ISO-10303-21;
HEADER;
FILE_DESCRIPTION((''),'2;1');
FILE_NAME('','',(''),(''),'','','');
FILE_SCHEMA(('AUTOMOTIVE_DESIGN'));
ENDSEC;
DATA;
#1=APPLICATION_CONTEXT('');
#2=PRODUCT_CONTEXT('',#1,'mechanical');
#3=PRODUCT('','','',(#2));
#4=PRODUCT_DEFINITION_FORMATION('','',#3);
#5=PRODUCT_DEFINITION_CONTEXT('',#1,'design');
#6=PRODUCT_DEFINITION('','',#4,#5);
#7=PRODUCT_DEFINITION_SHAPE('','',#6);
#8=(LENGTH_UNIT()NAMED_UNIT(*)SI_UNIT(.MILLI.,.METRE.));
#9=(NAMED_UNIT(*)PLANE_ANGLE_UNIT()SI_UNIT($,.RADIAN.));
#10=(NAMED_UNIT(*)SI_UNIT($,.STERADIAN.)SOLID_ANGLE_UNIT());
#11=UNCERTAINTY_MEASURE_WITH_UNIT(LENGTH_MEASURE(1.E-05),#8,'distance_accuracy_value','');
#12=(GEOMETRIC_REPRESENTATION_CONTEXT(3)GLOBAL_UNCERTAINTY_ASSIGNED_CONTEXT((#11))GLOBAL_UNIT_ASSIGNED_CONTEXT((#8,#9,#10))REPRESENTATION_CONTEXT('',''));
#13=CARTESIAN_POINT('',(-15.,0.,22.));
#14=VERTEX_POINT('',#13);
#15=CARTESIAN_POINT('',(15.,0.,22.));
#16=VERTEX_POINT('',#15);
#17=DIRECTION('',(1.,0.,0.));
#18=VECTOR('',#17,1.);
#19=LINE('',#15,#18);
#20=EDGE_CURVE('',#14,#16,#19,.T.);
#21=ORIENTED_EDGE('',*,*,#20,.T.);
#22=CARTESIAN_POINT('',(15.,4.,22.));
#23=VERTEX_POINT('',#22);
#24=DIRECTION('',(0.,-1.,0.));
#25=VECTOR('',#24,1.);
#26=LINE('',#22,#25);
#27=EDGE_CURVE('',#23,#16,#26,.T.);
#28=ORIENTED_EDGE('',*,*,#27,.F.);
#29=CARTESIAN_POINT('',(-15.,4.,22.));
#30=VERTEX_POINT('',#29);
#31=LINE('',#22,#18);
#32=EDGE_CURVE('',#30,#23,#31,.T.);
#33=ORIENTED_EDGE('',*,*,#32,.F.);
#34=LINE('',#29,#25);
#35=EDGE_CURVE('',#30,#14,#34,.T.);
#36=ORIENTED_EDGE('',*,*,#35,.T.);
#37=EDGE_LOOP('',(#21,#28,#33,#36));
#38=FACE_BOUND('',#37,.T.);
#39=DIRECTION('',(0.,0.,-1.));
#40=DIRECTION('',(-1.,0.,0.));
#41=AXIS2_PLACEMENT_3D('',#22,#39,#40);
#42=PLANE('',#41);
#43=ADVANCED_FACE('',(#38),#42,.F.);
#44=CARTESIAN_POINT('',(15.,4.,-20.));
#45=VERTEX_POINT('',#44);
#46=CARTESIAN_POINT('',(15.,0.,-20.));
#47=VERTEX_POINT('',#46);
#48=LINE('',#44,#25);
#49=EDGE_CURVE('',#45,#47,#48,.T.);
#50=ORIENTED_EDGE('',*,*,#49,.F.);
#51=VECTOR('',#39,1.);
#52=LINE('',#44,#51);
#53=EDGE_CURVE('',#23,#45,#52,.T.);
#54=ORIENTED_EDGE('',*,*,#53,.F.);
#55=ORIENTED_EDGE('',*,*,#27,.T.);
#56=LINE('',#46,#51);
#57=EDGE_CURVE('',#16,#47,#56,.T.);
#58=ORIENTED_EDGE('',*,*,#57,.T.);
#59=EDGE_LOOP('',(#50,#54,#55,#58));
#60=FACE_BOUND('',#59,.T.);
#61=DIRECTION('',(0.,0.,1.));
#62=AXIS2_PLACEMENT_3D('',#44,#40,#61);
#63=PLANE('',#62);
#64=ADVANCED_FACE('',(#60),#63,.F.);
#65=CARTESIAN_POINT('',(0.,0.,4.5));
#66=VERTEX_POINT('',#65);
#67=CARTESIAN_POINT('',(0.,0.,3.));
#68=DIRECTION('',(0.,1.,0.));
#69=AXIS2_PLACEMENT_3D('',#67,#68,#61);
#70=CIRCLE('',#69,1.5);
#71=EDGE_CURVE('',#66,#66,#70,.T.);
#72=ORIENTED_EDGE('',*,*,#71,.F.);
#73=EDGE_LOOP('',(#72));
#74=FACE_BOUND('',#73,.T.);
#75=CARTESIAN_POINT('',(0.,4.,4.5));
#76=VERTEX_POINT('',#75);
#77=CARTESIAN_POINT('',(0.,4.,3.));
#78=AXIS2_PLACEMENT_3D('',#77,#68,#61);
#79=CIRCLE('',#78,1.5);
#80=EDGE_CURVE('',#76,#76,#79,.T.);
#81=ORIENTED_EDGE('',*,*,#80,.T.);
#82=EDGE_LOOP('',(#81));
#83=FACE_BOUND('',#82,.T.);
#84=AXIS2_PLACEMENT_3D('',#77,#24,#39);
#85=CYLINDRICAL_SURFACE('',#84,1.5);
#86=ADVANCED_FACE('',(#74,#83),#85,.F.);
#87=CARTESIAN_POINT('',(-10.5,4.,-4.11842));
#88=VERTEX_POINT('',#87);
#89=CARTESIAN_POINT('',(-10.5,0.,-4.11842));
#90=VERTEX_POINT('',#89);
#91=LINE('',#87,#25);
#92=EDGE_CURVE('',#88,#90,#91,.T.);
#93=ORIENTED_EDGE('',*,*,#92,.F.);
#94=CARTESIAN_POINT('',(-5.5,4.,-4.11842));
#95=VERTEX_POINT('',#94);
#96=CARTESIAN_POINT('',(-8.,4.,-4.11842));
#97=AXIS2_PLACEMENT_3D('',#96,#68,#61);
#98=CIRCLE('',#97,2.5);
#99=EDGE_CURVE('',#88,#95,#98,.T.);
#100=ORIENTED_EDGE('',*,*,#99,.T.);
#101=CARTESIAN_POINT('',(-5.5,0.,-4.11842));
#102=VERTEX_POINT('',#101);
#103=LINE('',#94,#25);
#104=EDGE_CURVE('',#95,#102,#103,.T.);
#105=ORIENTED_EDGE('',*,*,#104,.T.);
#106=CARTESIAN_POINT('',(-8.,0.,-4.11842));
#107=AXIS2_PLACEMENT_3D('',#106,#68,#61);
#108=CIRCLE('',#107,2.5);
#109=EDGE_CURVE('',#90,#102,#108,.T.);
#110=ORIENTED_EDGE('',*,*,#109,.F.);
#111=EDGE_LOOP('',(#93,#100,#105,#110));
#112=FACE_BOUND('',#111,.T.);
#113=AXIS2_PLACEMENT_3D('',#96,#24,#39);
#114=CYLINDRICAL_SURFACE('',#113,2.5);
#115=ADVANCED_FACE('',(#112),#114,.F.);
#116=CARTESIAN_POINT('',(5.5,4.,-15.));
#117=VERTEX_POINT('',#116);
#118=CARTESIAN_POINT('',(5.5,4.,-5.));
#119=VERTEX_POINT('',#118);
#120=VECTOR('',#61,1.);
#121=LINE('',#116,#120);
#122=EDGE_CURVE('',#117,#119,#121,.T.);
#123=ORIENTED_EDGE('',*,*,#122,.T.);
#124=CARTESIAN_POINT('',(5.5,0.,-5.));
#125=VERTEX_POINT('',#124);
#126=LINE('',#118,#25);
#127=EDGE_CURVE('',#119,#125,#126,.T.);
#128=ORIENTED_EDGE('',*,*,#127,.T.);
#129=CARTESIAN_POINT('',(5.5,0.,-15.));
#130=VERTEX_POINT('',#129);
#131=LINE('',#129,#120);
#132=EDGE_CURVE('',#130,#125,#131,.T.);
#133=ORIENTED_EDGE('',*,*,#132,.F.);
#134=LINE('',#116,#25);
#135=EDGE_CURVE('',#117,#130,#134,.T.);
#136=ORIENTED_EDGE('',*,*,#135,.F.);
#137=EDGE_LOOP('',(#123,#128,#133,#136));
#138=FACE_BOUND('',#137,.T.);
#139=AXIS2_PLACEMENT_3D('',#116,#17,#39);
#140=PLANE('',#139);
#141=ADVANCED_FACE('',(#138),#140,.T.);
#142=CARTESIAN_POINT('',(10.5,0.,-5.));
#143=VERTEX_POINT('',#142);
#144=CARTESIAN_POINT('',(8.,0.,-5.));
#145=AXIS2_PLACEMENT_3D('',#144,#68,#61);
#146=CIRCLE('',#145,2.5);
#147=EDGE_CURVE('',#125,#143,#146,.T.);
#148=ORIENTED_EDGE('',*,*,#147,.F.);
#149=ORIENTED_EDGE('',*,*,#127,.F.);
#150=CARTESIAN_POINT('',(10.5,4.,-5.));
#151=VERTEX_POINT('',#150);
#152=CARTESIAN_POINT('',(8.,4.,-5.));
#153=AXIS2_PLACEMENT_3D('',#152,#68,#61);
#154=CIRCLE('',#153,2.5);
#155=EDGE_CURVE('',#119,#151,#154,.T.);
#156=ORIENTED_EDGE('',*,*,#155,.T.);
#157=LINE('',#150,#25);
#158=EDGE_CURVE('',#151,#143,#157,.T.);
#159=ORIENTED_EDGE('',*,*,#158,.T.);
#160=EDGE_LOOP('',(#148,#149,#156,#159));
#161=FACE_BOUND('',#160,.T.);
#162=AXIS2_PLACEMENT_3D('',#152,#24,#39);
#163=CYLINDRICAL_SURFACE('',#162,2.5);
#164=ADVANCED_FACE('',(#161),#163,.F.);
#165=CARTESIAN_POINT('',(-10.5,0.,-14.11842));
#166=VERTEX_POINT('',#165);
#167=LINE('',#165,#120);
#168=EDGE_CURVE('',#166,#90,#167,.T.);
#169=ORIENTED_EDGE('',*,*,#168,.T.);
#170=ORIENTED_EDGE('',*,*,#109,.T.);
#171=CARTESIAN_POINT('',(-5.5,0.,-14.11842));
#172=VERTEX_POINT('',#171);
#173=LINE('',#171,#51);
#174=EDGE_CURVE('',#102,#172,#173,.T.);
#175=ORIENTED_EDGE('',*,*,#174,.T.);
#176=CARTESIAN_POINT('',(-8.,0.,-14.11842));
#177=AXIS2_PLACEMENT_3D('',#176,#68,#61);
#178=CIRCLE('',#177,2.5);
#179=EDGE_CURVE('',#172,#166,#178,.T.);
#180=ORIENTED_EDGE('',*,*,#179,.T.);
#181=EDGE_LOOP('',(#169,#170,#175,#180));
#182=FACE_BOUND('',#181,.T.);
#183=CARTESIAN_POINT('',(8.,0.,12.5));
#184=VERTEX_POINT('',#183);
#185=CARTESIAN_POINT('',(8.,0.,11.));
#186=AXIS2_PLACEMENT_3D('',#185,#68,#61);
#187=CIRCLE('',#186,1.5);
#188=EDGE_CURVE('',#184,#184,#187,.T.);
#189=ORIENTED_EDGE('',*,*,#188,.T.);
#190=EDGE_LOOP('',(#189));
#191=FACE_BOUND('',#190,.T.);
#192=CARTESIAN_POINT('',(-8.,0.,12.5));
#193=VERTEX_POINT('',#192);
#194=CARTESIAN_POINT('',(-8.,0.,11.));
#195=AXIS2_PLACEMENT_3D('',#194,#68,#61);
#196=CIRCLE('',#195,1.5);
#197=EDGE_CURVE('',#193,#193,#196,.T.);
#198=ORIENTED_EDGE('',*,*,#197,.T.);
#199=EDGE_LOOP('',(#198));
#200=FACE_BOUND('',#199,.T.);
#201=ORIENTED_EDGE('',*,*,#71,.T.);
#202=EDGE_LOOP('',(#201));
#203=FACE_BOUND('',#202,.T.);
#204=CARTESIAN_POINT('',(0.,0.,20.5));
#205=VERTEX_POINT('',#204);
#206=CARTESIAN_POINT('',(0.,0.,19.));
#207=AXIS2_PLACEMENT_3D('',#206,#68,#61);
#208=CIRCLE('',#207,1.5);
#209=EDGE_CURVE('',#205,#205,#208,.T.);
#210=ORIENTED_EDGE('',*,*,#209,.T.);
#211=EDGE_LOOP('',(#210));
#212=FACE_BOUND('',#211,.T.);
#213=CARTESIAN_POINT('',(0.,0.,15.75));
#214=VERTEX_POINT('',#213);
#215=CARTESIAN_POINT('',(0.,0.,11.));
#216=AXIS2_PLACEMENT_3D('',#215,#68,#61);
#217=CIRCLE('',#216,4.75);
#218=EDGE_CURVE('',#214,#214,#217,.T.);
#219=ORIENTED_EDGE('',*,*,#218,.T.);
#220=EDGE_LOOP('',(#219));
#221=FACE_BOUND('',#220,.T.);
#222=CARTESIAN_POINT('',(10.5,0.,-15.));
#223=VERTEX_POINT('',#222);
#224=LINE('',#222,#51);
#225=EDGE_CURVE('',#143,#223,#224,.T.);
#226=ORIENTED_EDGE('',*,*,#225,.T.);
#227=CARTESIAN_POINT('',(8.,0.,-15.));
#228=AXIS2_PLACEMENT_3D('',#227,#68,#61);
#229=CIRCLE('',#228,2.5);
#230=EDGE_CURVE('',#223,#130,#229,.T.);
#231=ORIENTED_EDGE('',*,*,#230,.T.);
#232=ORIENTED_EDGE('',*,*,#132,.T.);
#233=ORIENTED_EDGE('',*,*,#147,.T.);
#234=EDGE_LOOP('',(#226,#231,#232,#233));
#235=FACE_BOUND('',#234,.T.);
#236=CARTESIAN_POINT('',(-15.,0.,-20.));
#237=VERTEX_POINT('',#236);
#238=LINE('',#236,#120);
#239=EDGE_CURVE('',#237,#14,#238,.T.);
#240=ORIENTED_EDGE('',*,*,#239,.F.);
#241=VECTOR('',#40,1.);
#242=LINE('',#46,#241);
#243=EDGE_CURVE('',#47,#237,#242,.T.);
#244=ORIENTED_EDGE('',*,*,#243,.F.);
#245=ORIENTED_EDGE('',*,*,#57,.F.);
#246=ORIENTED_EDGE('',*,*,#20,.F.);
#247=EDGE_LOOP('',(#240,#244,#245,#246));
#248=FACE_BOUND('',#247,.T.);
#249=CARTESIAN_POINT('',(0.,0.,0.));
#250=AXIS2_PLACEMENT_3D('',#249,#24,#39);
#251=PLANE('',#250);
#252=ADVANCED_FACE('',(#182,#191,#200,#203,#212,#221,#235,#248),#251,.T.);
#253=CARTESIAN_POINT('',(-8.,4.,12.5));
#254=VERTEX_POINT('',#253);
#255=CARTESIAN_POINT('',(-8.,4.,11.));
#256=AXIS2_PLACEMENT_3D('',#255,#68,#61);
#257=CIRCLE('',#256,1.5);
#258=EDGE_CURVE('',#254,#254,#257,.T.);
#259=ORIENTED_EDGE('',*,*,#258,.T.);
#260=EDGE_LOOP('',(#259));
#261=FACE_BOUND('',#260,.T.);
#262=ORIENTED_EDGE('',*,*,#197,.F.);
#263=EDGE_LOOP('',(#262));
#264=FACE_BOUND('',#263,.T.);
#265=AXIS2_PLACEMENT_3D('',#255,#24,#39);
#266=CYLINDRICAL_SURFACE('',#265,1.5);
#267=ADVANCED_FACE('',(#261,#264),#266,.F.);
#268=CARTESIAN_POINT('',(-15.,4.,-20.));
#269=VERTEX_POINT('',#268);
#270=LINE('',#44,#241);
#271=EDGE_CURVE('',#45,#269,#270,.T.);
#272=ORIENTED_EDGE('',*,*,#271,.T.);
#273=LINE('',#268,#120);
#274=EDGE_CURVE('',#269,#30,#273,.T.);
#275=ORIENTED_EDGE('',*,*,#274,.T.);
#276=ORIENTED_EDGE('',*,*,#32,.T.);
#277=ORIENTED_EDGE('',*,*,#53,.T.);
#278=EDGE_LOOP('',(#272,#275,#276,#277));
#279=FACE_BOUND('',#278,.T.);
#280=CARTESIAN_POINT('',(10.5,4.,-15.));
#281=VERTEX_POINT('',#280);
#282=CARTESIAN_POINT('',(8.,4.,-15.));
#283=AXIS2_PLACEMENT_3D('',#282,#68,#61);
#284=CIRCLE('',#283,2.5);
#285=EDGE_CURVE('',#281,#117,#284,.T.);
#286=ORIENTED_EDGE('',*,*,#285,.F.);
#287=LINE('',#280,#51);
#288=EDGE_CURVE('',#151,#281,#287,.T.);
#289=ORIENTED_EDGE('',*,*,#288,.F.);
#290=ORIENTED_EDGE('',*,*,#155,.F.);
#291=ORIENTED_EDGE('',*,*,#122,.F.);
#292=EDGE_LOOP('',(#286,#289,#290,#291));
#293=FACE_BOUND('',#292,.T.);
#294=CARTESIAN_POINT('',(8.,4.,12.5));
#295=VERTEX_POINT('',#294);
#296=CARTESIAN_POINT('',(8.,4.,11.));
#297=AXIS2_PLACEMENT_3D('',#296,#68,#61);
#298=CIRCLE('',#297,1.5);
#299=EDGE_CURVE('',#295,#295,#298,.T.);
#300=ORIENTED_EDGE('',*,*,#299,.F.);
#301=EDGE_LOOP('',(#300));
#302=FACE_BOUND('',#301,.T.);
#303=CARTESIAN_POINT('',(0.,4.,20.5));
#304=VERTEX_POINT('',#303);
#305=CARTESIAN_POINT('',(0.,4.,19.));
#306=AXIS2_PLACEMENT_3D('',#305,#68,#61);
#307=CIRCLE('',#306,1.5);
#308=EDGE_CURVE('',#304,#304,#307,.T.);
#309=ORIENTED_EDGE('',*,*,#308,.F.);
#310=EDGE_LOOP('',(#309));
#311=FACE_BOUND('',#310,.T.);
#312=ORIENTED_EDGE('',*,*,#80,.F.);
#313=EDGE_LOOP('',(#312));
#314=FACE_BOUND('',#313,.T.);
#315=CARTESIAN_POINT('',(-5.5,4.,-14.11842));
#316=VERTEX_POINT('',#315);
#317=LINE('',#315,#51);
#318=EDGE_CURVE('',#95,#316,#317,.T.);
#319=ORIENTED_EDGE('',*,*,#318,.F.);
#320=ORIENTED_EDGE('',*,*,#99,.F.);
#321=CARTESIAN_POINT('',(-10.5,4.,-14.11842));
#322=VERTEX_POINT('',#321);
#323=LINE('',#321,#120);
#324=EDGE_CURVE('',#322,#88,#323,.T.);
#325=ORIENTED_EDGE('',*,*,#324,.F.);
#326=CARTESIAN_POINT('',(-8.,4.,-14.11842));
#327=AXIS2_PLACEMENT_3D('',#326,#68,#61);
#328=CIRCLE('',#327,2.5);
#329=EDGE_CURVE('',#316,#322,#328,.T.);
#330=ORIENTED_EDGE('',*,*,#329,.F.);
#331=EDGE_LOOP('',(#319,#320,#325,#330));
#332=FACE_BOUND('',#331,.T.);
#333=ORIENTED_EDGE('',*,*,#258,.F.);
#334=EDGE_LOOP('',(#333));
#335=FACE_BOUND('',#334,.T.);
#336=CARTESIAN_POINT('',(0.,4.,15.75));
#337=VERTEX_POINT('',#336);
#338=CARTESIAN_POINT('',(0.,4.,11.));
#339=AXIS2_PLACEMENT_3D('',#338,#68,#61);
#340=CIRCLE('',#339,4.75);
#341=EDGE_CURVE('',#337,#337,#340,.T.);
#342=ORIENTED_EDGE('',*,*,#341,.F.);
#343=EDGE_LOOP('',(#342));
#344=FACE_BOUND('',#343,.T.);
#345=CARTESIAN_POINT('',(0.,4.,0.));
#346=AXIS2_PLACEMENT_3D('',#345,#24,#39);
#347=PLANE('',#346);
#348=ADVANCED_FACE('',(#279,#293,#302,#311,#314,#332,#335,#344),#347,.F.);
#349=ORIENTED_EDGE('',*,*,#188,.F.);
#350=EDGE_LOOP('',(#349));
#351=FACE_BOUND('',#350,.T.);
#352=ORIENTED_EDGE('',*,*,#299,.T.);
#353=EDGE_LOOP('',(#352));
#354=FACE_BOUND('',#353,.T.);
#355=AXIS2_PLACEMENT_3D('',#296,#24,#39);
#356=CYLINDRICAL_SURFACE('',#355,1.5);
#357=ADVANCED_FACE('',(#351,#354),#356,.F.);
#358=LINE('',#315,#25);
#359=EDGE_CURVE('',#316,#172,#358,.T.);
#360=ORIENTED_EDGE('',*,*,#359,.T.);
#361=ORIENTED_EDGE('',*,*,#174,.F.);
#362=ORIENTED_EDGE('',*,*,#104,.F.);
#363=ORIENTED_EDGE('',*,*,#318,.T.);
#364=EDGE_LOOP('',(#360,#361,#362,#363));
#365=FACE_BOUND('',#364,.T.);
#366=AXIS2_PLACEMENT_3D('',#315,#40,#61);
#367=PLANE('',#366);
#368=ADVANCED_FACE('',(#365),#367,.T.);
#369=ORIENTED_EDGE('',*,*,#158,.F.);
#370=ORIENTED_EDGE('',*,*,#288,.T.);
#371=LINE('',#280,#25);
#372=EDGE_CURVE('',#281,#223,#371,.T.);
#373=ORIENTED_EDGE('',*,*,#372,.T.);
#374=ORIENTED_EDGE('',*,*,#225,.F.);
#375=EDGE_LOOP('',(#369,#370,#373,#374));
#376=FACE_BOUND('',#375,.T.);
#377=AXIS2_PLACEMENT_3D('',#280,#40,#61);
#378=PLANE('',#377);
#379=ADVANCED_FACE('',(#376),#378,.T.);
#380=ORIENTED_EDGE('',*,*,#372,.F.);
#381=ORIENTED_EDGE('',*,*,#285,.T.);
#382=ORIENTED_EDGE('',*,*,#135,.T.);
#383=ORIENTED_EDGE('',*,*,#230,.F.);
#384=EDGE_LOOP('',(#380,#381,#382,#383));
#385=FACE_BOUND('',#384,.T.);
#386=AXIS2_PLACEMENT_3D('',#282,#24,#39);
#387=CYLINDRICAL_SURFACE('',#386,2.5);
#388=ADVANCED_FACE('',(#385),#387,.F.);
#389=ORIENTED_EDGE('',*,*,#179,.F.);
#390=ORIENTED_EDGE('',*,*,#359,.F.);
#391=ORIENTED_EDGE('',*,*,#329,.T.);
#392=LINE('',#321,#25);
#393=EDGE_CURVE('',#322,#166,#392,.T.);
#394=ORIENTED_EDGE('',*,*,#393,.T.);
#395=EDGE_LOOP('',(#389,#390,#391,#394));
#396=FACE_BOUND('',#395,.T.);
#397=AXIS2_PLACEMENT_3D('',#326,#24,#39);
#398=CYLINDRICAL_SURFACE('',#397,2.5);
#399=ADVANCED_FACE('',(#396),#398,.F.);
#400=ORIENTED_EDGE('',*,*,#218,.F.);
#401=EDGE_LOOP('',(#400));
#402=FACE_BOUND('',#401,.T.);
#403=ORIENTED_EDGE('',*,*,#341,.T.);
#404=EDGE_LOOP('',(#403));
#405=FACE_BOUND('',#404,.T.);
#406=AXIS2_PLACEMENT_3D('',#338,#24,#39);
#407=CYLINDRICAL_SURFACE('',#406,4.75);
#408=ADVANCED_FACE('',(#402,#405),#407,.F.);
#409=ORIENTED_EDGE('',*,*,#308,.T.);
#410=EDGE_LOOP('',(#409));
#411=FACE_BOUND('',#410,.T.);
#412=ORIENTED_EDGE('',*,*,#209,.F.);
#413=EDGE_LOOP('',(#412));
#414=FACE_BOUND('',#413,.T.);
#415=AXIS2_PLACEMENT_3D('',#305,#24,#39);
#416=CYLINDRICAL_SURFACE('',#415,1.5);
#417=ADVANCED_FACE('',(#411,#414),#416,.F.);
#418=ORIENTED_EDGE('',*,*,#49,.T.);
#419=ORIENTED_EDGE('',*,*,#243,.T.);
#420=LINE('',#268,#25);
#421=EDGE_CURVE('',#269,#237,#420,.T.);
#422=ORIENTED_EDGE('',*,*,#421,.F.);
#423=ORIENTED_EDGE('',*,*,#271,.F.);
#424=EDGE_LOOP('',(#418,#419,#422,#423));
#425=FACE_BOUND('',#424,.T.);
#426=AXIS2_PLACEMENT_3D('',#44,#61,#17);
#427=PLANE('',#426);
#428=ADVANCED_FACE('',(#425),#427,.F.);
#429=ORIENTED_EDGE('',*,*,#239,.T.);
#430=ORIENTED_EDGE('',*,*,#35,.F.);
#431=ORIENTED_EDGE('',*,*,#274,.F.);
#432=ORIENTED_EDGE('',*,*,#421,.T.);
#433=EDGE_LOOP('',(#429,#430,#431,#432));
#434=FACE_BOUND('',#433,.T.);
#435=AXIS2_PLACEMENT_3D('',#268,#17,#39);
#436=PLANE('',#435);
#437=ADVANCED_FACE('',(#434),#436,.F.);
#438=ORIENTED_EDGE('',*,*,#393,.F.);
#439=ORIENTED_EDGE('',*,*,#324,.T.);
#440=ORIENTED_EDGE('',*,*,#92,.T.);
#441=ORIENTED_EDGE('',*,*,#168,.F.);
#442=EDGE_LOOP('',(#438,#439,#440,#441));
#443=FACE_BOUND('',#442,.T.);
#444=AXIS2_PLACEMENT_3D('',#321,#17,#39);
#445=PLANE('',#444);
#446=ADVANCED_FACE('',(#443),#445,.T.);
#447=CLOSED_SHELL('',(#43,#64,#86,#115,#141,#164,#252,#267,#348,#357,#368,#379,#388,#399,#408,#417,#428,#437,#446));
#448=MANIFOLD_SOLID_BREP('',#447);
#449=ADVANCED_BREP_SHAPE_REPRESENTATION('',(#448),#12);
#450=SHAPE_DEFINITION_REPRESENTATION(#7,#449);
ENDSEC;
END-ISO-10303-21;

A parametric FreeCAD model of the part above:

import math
import FreeCAD as App
import Part
import Sketcher


def add_polygon(sketch, points):
    """Adds a closed chain of lines whose ends are joined by coincident constraints."""
    first, n = sketch.GeometryCount, len(points)
    for a, b in zip(points, points[1:] + points[:1]):
        sketch.addGeometry(Part.LineSegment(App.Vector(*a, 0), App.Vector(*b, 0)), False)
    for i in range(n):
        sketch.addConstraint(Sketcher.Constraint("Coincident", first + i, 2, first + (i + 1) % n, 1))

doc = App.newDocument("Part")
body = doc.addObject("PartDesign::Body", "Body")

sketch1 = body.newObject("Sketcher::SketchObject", "Sketch")
sketch1.AttachmentSupport = (doc.getObject("XZ_Plane"), [""])
sketch1.MapMode = "FlatFace"
add_polygon(sketch1, [(-15, -20), (-15, 22), (15, 22), (15, -20)])
sketch1.addGeometry(Part.Circle(App.Vector(-8, 11, 0), App.Vector(0, 0, 1), 1.5), False)
sketch1.addGeometry(Part.Circle(App.Vector(0, 19, 0), App.Vector(0, 0, 1), 1.5), False)
sketch1.addGeometry(Part.Circle(App.Vector(0, 11, 0), App.Vector(0, 0, 1), 4.8), False)
sketch1.addGeometry(Part.Circle(App.Vector(0, 3, 0), App.Vector(0, 0, 1), 1.5), False)
sketch1.addGeometry(Part.Circle(App.Vector(8, 11, 0), App.Vector(0, 0, 1), 1.5), False)
sketch1.addGeometry(Part.LineSegment(App.Vector(-10.5, -4.1, 0), App.Vector(-10.5, -14.1, 0)), False)
sketch1.addGeometry(Part.ArcOfCircle(Part.Circle(App.Vector(-8, -14.1, 0), App.Vector(0, 0, 1), 2.5), math.radians(180), math.radians(360)), False)
sketch1.addGeometry(Part.LineSegment(App.Vector(-5.5, -14.1, 0), App.Vector(-5.5, -4.1, 0)), False)
sketch1.addGeometry(Part.ArcOfCircle(Part.Circle(App.Vector(-8, -4.1, 0), App.Vector(0, 0, 1), 2.5), math.radians(0), math.radians(180)), False)
sketch1.addGeometry(Part.LineSegment(App.Vector(5.5, -5, 0), App.Vector(5.5, -15, 0)), False)
sketch1.addGeometry(Part.ArcOfCircle(Part.Circle(App.Vector(8, -15, 0), App.Vector(0, 0, 1), 2.5), math.radians(180), math.radians(360)), False)
sketch1.addGeometry(Part.LineSegment(App.Vector(10.5, -15, 0), App.Vector(10.5, -5, 0)), False)
sketch1.addGeometry(Part.ArcOfCircle(Part.Circle(App.Vector(8, -5, 0), App.Vector(0, 0, 1), 2.5), math.radians(0), math.radians(180)), False)
sketch1.addConstraint([
    Sketcher.Constraint("Tangent", 9, 2, 10, 1),
    Sketcher.Constraint("Tangent", 10, 2, 11, 1),
    Sketcher.Constraint("Tangent", 11, 2, 12, 1),
    Sketcher.Constraint("Tangent", 12, 2, 9, 1),
    Sketcher.Constraint("Tangent", 13, 2, 14, 1),
    Sketcher.Constraint("Tangent", 14, 2, 15, 1),
    Sketcher.Constraint("Tangent", 15, 2, 16, 1),
    Sketcher.Constraint("Tangent", 16, 2, 13, 1),
    Sketcher.Constraint("Vertical", 0),
    Sketcher.Constraint("Horizontal", 1),
    Sketcher.Constraint("Vertical", 2),
    Sketcher.Constraint("Horizontal", 3),
    Sketcher.Constraint("Vertical", 9),
    Sketcher.Constraint("Vertical", 11),
    Sketcher.Constraint("Vertical", 13),
    Sketcher.Constraint("Vertical", 15),
    Sketcher.Constraint("Equal", 4, 5),
    Sketcher.Constraint("Equal", 5, 7),
    Sketcher.Constraint("Equal", 7, 8),
    Sketcher.Constraint("Equal", 12, 14),
    Sketcher.Constraint("Symmetric", 4, 3, 8, 3, -2),
    Sketcher.Constraint("PointOnObject", 5, 3, -2),
    Sketcher.Constraint("PointOnObject", 6, 3, -2),
    Sketcher.Constraint("PointOnObject", 7, 3, -2),
    Sketcher.Constraint("Horizontal", 4, 3, 6, 3),
    Sketcher.Constraint("Vertical", 4, 3, 10, 3),
    Sketcher.Constraint("Vertical", 8, 3, 14, 3),
    Sketcher.Constraint("Equal", 11, 13),
    Sketcher.Constraint("Diameter", 4, 3.0),
    Sketcher.Constraint("Diameter", 6, 9.5),
    Sketcher.Constraint("Radius", 10, 2.5),
    Sketcher.Constraint("DistanceX", 1, 1, 1, 2, 30.0),
    Sketcher.Constraint("DistanceY", 0, 1, 0, 2, 42.0),
    Sketcher.Constraint("DistanceY", 9, 2, 9, 1, 10.0),
    Sketcher.Constraint("DistanceX", 4, 3, -1, 1, 8.0),
    Sketcher.Constraint("DistanceY", -1, 1, 4, 3, 11.0),
    Sketcher.Constraint("DistanceY", -1, 1, 5, 3, 19.0),
    Sketcher.Constraint("DistanceY", -1, 1, 7, 3, 3.0),
    Sketcher.Constraint("DistanceY", 14, 3, -1, 1, 15.0),
    Sketcher.Constraint("DistanceX", 0, 2, -1, 1, 15.0),
    Sketcher.Constraint("DistanceY", -1, 1, 0, 2, 22.0),
    Sketcher.Constraint("DistanceY", 10, 3, -1, 1, 14.11842),
])
pad1 = body.newObject("PartDesign::Pad", "Pad")
pad1.Profile = sketch1
pad1.Length = 4
pad1.Reversed = True

doc.recompute()
